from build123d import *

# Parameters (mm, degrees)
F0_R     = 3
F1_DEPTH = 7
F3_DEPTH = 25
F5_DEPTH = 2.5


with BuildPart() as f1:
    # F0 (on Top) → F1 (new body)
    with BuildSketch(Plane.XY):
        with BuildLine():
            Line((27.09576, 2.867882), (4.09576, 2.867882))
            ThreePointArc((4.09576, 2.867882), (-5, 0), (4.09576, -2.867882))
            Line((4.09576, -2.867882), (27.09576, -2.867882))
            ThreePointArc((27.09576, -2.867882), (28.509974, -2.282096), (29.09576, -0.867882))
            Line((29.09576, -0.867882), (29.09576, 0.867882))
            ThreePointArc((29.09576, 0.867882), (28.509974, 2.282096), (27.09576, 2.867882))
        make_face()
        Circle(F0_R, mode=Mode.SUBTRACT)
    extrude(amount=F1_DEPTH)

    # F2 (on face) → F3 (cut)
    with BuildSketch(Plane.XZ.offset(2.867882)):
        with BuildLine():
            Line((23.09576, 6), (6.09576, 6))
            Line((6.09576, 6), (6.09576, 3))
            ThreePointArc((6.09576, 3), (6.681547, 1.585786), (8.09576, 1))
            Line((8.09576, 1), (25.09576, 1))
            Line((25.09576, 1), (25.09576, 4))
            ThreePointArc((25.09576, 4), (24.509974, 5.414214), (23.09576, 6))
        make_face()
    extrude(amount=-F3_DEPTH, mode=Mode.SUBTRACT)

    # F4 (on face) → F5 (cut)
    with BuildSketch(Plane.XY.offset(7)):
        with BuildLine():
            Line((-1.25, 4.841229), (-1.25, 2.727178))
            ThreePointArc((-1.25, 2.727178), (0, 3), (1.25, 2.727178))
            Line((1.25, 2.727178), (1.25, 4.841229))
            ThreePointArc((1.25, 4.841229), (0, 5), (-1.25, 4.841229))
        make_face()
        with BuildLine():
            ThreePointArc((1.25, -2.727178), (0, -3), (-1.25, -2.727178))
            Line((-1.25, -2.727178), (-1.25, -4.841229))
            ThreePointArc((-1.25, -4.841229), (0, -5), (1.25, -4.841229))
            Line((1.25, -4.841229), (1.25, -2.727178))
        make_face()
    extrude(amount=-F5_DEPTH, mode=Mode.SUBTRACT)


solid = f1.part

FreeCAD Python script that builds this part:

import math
import FreeCAD as App
import Part
import Sketcher

V = App.Vector

doc = App.newDocument("Part")
body = doc.addObject("PartDesign::Body", "Body")

# Sketch on XY plane
sketch1 = body.newObject("Sketcher::SketchObject", "Sketch")
sketch1.AttachmentSupport = (doc.getObject("XY_Plane"), [""])
sketch1.MapMode = "FlatFace"
sketch1.addGeometry(Part.LineSegment(V(27.1, 2.9, 0), V(4.1, 2.9, 0)), False)
sketch1.addGeometry(Part.ArcOfCircle(Part.Circle(V(0, 0, 0), V(0, 0, 1), 5), math.radians(35), math.radians(325)), False)
sketch1.addGeometry(Part.LineSegment(V(4.1, -2.9, 0), V(27.1, -2.9, 0)), False)
sketch1.addGeometry(Part.ArcOfCircle(Part.Circle(V(27.1, -0.9, 0), V(0, 0, 1), 2), math.radians(-90), math.radians(0)), False)
sketch1.addGeometry(Part.LineSegment(V(29.1, -0.9, 0), V(29.1, 0.9, 0)), False)
sketch1.addGeometry(Part.ArcOfCircle(Part.Circle(V(27.1, 0.9, 0), V(0, 0, 1), 2), math.radians(0), math.radians(90)), False)
sketch1.addGeometry(Part.Circle(V(0, 0, 0), V(0, 0, 1), 3), False)
sketch1.addConstraint(Sketcher.Constraint("Coincident", 0, 2, 1, 1))
sketch1.addConstraint(Sketcher.Constraint("Coincident", 1, 2, 2, 1))
sketch1.addConstraint(Sketcher.Constraint("Tangent", 2, 2, 3, 1))
sketch1.addConstraint(Sketcher.Constraint("Tangent", 3, 2, 4, 1))
sketch1.addConstraint(Sketcher.Constraint("Tangent", 4, 2, 5, 1))
sketch1.addConstraint(Sketcher.Constraint("Tangent", 5, 2, 0, 1))
sketch1.addConstraint(Sketcher.Constraint("Horizontal", 0))
sketch1.addConstraint(Sketcher.Constraint("Horizontal", 2))
sketch1.addConstraint(Sketcher.Constraint("Vertical", 4))
sketch1.addConstraint(Sketcher.Constraint("Coincident", 1, 3, -1, 1))
sketch1.addConstraint(Sketcher.Constraint("Coincident", 6, 3, -1, 1))
sketch1.addConstraint(Sketcher.Constraint("Equal", 3, 5))
sketch1.addConstraint(Sketcher.Constraint("Vertical", 0, 2, 1, 2))
sketch1.addConstraint(Sketcher.Constraint("Diameter", 6, 6.0))
sketch1.addConstraint(Sketcher.Constraint("Radius", 1, 5.0))
sketch1.addConstraint(Sketcher.Constraint("Radius", 3, 1.999999))
sketch1.addConstraint(Sketcher.Constraint("DistanceX", 0, 2, 0, 1, 23.0))
sketch1.addConstraint(Sketcher.Constraint("DistanceY", 4, 1, 4, 2, 1.735764))
pad1 = body.newObject("PartDesign::Pad", "Pad")
pad1.Profile = sketch1
pad1.Length = 7

# Sketch on XZ plane
sketch2 = body.newObject("Sketcher::SketchObject", "Sketch001")
sketch2.AttachmentSupport = (doc.getObject("XZ_Plane"), [""])
sketch2.MapMode = "FlatFace"
sketch2.AttachmentOffset = App.Placement(V(0, 0, 2.867882), App.Rotation())
sketch2.addGeometry(Part.LineSegment(V(23.1, 6, 0), V(6.1, 6, 0)), False)
sketch2.addGeometry(Part.LineSegment(V(6.1, 6, 0), V(6.1, 3, 0)), False)
sketch2.addGeometry(Part.ArcOfCircle(Part.Circle(V(8.1, 3, 0), V(0, 0, 1), 2), math.radians(-180), math.radians(-90)), False)
sketch2.addGeometry(Part.LineSegment(V(8.1, 1, 0), V(25.1, 1, 0)), False)
sketch2.addGeometry(Part.LineSegment(V(25.1, 1, 0), V(25.1, 4, 0)), False)
sketch2.addGeometry(Part.ArcOfCircle(Part.Circle(V(23.1, 4, 0), V(0, 0, 1), 2), math.radians(0), math.radians(90)), False)
sketch2.addConstraint(Sketcher.Constraint("Coincident", 0, 2, 1, 1))
sketch2.addConstraint(Sketcher.Constraint("Tangent", 1, 2, 2, 1))
sketch2.addConstraint(Sketcher.Constraint("Tangent", 2, 2, 3, 1))
sketch2.addConstraint(Sketcher.Constraint("Coincident", 3, 2, 4, 1))
sketch2.addConstraint(Sketcher.Constraint("Tangent", 4, 2, 5, 1))
sketch2.addConstraint(Sketcher.Constraint("Tangent", 5, 2, 0, 1))
sketch2.addConstraint(Sketcher.Constraint("Horizontal", 0))
sketch2.addConstraint(Sketcher.Constraint("Vertical", 1))
sketch2.addConstraint(Sketcher.Constraint("Horizontal", 3))
sketch2.addConstraint(Sketcher.Constraint("Vertical", 4))
sketch2.addConstraint(Sketcher.Constraint("Equal", 2, 5))
sketch2.addConstraint(Sketcher.Constraint("Radius", 2, 2.0))
sketch2.addConstraint(Sketcher.Constraint("DistanceX", 0, 2, 0, 1, 17.0))
sketch2.addConstraint(Sketcher.Constraint("DistanceY", 1, 2, 1, 1, 3.0))
sketch2.addConstraint(Sketcher.Constraint("DistanceY", -1, 1, 2, 3, 3.0))
sketch2.addConstraint(Sketcher.Constraint("DistanceX", -1, 1, 2, 3, 8.09576))
pocket1 = body.newObject("PartDesign::Pocket", "Pocket")
pocket1.Profile = sketch2
pocket1.Length = 25

# Sketch on XY plane
sketch3 = body.newObject("Sketcher::SketchObject", "Sketch002")
sketch3.AttachmentSupport = (doc.getObject("XY_Plane"), [""])
sketch3.MapMode = "FlatFace"
sketch3.AttachmentOffset = App.Placement(V(0, 0, 7), App.Rotation())
sketch3.addGeometry(Part.LineSegment(V(-1.2, 4.8, 0), V(-1.2, 2.7, 0)), False)
sketch3.addGeometry(Part.ArcOfCircle(Part.Circle(V(0, 0, 0), V(0, 0, 1), 3), math.radians(65), math.radians(115)), False)
sketch3.addGeometry(Part.LineSegment(V(1.2, 2.7, 0), V(1.2, 4.8, 0)), False)
sketch3.addGeometry(Part.ArcOfCircle(Part.Circle(V(0, 0, 0), V(0, 0, 1), 5), math.radians(76), math.radians(104)), False)
sketch3.addGeometry(Part.ArcOfCircle(Part.Circle(V(0, 0, 0), V(0, 0, 1), 3), math.radians(-115), math.radians(-65)), False)
sketch3.addGeometry(Part.LineSegment(V(-1.2, -2.7, 0), V(-1.2, -4.8, 0)), False)
sketch3.addGeometry(Part.ArcOfCircle(Part.Circle(V(0, 0, 0), V(0, 0, 1), 5), math.radians(-104), math.radians(-76)), False)
sketch3.addGeometry(Part.LineSegment(V(1.2, -4.8, 0), V(1.2, -2.7, 0)), False)
sketch3.addConstraint(Sketcher.Constraint("Coincident", 0, 2, 1, 2))
sketch3.addConstraint(Sketcher.Constraint("Coincident", 1, 1, 2, 1))
sketch3.addConstraint(Sketcher.Constraint("Coincident", 2, 2, 3, 1))
sketch3.addConstraint(Sketcher.Constraint("Coincident", 3, 2, 0, 1))
sketch3.addConstraint(Sketcher.Constraint("Coincident", 4, 1, 5, 1))
sketch3.addConstraint(Sketcher.Constraint("Coincident", 5, 2, 6, 1))
sketch3.addConstraint(Sketcher.Constraint("Coincident", 6, 2, 7, 1))
sketch3.addConstraint(Sketcher.Constraint("Coincident", 7, 2, 4, 2))
sketch3.addConstraint(Sketcher.Constraint("Vertical", 0))
sketch3.addConstraint(Sketcher.Constraint("Vertical", 2))
sketch3.addConstraint(Sketcher.Constraint("Vertical", 5))
sketch3.addConstraint(Sketcher.Constraint("Vertical", 7))
sketch3.addConstraint(Sketcher.Constraint("Coincident", 1, 3, -1, 1))
sketch3.addConstraint(Sketcher.Constraint("Coincident", 3, 3, -1, 1))
sketch3.addConstraint(Sketcher.Constraint("Coincident", 4, 3, -1, 1))
sketch3.addConstraint(Sketcher.Constraint("Coincident", 6, 3, -1, 1))
sketch3.addConstraint(Sketcher.Constraint("Equal", 1, 4))
sketch3.addConstraint(Sketcher.Constraint("Equal", 3, 6))
sketch3.addConstraint(Sketcher.Constraint("Horizontal", 0, 2, 1, 1))
sketch3.addConstraint(Sketcher.Constraint("Horizontal", 5, 2, 6, 2))
sketch3.addConstraint(Sketcher.Constraint("Vertical", 3, 2, 4, 1))
sketch3.addConstraint(Sketcher.Constraint("Radius", 1, 3.0))
sketch3.addConstraint(Sketcher.Constraint("DistanceX", 0, 2, 1, 1, 2.5))
sketch3.addConstraint(Sketcher.Constraint("Radius", 3, 4.999994))
pocket2 = body.newObject("PartDesign::Pocket", "Pocket001")
pocket2.Profile = sketch3
pocket2.Length = 2.5

doc.recompute()
